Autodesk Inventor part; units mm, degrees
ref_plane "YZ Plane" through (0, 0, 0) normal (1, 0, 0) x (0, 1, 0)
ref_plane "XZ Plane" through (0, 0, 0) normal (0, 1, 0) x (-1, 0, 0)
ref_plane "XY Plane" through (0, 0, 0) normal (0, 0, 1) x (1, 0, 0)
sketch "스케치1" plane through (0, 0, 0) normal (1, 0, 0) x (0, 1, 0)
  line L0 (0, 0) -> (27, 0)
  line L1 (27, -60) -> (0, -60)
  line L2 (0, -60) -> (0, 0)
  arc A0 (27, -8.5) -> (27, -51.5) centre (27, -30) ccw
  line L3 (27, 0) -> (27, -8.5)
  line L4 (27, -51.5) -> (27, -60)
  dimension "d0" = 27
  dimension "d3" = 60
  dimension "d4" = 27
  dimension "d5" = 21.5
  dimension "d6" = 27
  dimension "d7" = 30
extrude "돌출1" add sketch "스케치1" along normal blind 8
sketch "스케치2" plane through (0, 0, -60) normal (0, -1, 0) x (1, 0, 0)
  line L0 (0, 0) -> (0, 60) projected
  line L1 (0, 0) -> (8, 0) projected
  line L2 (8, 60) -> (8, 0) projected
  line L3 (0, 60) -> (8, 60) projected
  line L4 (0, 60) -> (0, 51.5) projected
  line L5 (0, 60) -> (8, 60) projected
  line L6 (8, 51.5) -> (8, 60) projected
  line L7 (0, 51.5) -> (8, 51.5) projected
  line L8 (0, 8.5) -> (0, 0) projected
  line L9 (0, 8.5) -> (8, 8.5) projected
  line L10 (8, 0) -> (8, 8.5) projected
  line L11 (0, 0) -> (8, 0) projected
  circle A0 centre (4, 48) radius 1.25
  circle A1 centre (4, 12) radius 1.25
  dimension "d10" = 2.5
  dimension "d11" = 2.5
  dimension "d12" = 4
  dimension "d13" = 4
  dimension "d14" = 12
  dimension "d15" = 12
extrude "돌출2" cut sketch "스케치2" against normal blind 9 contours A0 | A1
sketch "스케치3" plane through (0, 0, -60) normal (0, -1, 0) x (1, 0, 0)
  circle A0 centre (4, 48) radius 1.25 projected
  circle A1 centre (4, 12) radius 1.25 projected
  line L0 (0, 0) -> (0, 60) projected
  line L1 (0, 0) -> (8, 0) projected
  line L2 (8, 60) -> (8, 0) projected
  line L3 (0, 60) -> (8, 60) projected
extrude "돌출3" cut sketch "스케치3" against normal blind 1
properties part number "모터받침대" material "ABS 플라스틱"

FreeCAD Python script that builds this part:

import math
import FreeCAD as App
import Part
import Sketcher

V = App.Vector
Q = App.Units.Quantity

doc = App.newDocument("Part")
body = doc.addObject("PartDesign::Body", "Body")

sketch1 = body.newObject("Sketcher::SketchObject", "Sketch")
sketch1.AttachmentSupport = (doc.getObject("YZ_Plane"), [""])
sketch1.MapMode = "FlatFace"
sketch1.addGeometry([
    Part.LineSegment(V(27, 0, 0), V(0, 0, 0)),
    Part.LineSegment(V(0, 0, 0), V(0, -60, 0)),
    Part.LineSegment(V(0, -60, 0), V(27, -60, 0)),
    Part.LineSegment(V(27, -60, 0), V(27, -52, 0)),
    Part.ArcOfCircle(Part.Circle(V(27, -30, 0), V(0, 0, 1), 22), math.radians(90), math.radians(270)),
    Part.LineSegment(V(27, -8, 0), V(27, 0, 0)),
], False)
sketch1.addConstraint([
    Sketcher.Constraint("Coincident", 0, 2, 1, 1),
    Sketcher.Constraint("Coincident", 1, 2, 2, 1),
    Sketcher.Constraint("Coincident", 2, 2, 3, 1),
    Sketcher.Constraint("Coincident", 3, 2, 4, 2),
    Sketcher.Constraint("Coincident", 4, 1, 5, 1),
    Sketcher.Constraint("Coincident", 5, 2, 0, 1),
    Sketcher.Constraint("Horizontal", 0),
    Sketcher.Constraint("Vertical", 1),
    Sketcher.Constraint("Horizontal", 2),
    Sketcher.Constraint("Vertical", 3),
    Sketcher.Constraint("Vertical", 5),
    Sketcher.Constraint("Coincident", 0, 2, -1, 1),
    Sketcher.Constraint("Vertical", 4, 3, 2, 2),
    Sketcher.Constraint("Vertical", 3, 2, 4, 1),
    Sketcher.Constraint("Equal", 3, 5),
    Sketcher.Constraint("Radius", 4, Q("21.5 mm")),
    Sketcher.Constraint("DistanceX", 0, 2, 0, 1, Q("27 mm")),
    Sketcher.Constraint("DistanceY", 1, 2, 1, 1, Q("60 mm")),
])
pad1 = body.newObject("PartDesign::Pad", "Pad")
pad1.Profile = sketch1
pad1.Length = 8

sketch2 = body.newObject("Sketcher::SketchObject", "Sketch001")
sketch2.AttachmentSupport = (doc.getObject("XZ_Plane"), [""])
sketch2.MapMode = "FlatFace"
sketch2.addGeometry([
    Part.Circle(V(4, -12, 0), V(0, 0, 1), 1.2),
    Part.Circle(V(4, -48, 0), V(0, 0, 1), 1.2),
], False)
sketch2.addConstraint([
    Sketcher.Constraint("Equal", 0, 1),
    Sketcher.Constraint("Vertical", 0, 3, 1, 3),
    Sketcher.Constraint("Diameter", 0, Q("2.5 mm")),
    Sketcher.Constraint("DistanceX", -1, 1, 0, 3, Q("4 mm")),
    Sketcher.Constraint("DistanceY", 0, 3, -1, 1, Q("12 mm")),
    Sketcher.Constraint("DistanceY", 1, 3, -1, 1, Q("48 mm")),
])
pocket1 = body.newObject("PartDesign::Pocket", "Pocket")
pocket1.Profile = sketch2
pocket1.Length = 9

sketch3 = body.newObject("Sketcher::SketchObject", "Sketch002")
sketch3.AttachmentSupport = (doc.getObject("XZ_Plane"), [""])
sketch3.MapMode = "FlatFace"
sketch3.addGeometry([
    Part.LineSegment(V(0, 0, 0), V(0, -60, 0)),
    Part.LineSegment(V(0, -60, 0), V(8, -60, 0)),
    Part.LineSegment(V(8, -60, 0), V(8, 0, 0)),
    Part.LineSegment(V(8, 0, 0), V(0, 0, 0)),
    Part.Circle(V(4, -48, 0), V(0, 0, 1), 1.2),
    Part.Circle(V(4, -12, 0), V(0, 0, 1), 1.2),
], False)
sketch3.addConstraint([
    Sketcher.Constraint("Coincident", 0, 2, 1, 1),
    Sketcher.Constraint("Coincident", 1, 2, 2, 1),
    Sketcher.Constraint("Coincident", 2, 2, 3, 1),
    Sketcher.Constraint("Coincident", 3, 2, 0, 1),
    Sketcher.Constraint("Vertical", 0),
    Sketcher.Constraint("Horizontal", 1),
    Sketcher.Constraint("Vertical", 2),
    Sketcher.Constraint("Horizontal", 3),
    Sketcher.Constraint("Coincident", 3, 2, -1, 1),
    Sketcher.Constraint("Equal", 4, 5),
    Sketcher.Constraint("Vertical", 4, 3, 5, 3),
    Sketcher.Constraint("Diameter", 4, Q("2.5 mm")),
    Sketcher.Constraint("DistanceX", 1, 1, 1, 2, Q("8 mm")),
    Sketcher.Constraint("DistanceY", 0, 2, 0, 1, Q("60 mm")),
    Sketcher.Constraint("DistanceX", -1, 1, 4, 3, Q("4 mm")),
    Sketcher.Constraint("DistanceY", 4, 3, -1, 1, Q("48 mm")),
    Sketcher.Constraint("DistanceY", 5, 3, -1, 1, Q("12 mm")),
])
pocket2 = body.newObject("PartDesign::Pocket", "Pocket001")
pocket2.Profile = sketch3
pocket2.Length = 1

doc.recompute()
